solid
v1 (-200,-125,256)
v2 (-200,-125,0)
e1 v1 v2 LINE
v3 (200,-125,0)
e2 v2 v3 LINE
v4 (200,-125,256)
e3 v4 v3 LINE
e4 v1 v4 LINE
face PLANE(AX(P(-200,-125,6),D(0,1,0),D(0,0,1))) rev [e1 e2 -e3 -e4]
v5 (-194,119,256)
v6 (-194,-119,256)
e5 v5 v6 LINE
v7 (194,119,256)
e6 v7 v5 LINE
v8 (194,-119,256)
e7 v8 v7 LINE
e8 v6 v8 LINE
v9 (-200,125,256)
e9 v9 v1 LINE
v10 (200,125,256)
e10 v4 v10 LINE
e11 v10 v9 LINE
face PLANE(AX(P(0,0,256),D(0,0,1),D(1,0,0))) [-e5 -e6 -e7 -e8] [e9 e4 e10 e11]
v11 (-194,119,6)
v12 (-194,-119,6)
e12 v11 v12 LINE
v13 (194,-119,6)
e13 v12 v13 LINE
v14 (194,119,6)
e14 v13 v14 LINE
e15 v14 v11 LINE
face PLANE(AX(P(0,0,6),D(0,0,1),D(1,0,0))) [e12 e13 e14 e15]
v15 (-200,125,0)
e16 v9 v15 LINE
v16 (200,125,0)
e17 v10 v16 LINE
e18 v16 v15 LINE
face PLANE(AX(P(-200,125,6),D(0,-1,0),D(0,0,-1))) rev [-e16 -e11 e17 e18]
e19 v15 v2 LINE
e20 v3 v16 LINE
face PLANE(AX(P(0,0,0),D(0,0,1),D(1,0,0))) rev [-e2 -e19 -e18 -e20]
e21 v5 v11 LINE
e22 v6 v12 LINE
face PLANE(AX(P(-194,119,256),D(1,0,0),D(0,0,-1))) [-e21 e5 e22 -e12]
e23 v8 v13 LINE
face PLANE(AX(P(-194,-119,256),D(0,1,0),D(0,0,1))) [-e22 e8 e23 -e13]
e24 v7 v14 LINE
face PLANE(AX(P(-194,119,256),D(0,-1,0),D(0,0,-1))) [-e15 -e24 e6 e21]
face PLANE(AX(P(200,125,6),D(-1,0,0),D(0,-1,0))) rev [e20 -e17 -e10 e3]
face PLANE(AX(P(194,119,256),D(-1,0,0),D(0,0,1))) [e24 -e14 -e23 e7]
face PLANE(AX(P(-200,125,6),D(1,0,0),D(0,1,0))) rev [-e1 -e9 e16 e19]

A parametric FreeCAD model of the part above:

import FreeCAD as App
import Part
import Sketcher

V = App.Vector


def add_polygon(sketch, points):
    """Adds a closed chain of lines whose ends are joined by coincident constraints."""
    first, n = sketch.GeometryCount, len(points)
    for a, b in zip(points, points[1:] + points[:1]):
        sketch.addGeometry(Part.LineSegment(App.Vector(*a, 0), App.Vector(*b, 0)), False)
    for i in range(n):
        sketch.addConstraint(Sketcher.Constraint("Coincident", first + i, 2, first + (i + 1) % n, 1))

doc = App.newDocument("Part")
body = doc.addObject("PartDesign::Body", "Body")

# Sketch on XY plane
sketch1 = body.newObject("Sketcher::SketchObject", "Sketch")
sketch1.AttachmentSupport = (doc.getObject("XY_Plane"), [""])
sketch1.MapMode = "FlatFace"
add_polygon(sketch1, [(-200, 125), (-200, -125), (200, -125), (200, 125)])  # lines 0-3
sketch1.addConstraint([
    Sketcher.Constraint("Vertical", 0),
    Sketcher.Constraint("Horizontal", 1),
    Sketcher.Constraint("Vertical", 2),
    Sketcher.Constraint("Horizontal", 3),
    Sketcher.Constraint("Symmetric", 0, 2, 2, 2, -1, 1),
    Sketcher.Constraint("DistanceX", 1, 1, 1, 2, 400.0),
    Sketcher.Constraint("DistanceY", 0, 2, 0, 1, 250.0),
])
pad1 = body.newObject("PartDesign::Pad", "Pad")
pad1.Profile = sketch1
pad1.Length = 6

# Sketch on XY plane
sketch2 = body.newObject("Sketcher::SketchObject", "Sketch001")
sketch2.AttachmentSupport = (doc.getObject("XY_Plane"), [""])
sketch2.MapMode = "FlatFace"
sketch2.AttachmentOffset = App.Placement(V(0, 0, 6), App.Rotation())
add_polygon(sketch2, [(-200, 125), (-200, -125), (200, -125), (200, 125)])  # lines 0-3
add_polygon(sketch2, [(194, -119), (-194, -119), (-194, 119), (194, 119)])  # lines 4-7
sketch2.addConstraint([
    Sketcher.Constraint("Vertical", 0),
    Sketcher.Constraint("Horizontal", 1),
    Sketcher.Constraint("Vertical", 2),
    Sketcher.Constraint("Horizontal", 3),
    Sketcher.Constraint("Horizontal", 4),
    Sketcher.Constraint("Vertical", 5),
    Sketcher.Constraint("Horizontal", 6),
    Sketcher.Constraint("Vertical", 7),
    Sketcher.Constraint("Symmetric", 0, 2, 2, 2, -1, 1),
    Sketcher.Constraint("Symmetric", 4, 2, 6, 2, -1, 1),
    Sketcher.Constraint("DistanceX", 1, 1, 1, 2, 400.0),
    Sketcher.Constraint("DistanceX", 4, 2, 4, 1, 388.0),
    Sketcher.Constraint("DistanceY", 0, 2, 0, 1, 250.0),
    Sketcher.Constraint("DistanceY", 5, 1, 5, 2, 238.0),
])
pad2 = body.newObject("PartDesign::Pad", "Pad001")
pad2.Profile = sketch2
pad2.Length = 250

doc.recompute()
